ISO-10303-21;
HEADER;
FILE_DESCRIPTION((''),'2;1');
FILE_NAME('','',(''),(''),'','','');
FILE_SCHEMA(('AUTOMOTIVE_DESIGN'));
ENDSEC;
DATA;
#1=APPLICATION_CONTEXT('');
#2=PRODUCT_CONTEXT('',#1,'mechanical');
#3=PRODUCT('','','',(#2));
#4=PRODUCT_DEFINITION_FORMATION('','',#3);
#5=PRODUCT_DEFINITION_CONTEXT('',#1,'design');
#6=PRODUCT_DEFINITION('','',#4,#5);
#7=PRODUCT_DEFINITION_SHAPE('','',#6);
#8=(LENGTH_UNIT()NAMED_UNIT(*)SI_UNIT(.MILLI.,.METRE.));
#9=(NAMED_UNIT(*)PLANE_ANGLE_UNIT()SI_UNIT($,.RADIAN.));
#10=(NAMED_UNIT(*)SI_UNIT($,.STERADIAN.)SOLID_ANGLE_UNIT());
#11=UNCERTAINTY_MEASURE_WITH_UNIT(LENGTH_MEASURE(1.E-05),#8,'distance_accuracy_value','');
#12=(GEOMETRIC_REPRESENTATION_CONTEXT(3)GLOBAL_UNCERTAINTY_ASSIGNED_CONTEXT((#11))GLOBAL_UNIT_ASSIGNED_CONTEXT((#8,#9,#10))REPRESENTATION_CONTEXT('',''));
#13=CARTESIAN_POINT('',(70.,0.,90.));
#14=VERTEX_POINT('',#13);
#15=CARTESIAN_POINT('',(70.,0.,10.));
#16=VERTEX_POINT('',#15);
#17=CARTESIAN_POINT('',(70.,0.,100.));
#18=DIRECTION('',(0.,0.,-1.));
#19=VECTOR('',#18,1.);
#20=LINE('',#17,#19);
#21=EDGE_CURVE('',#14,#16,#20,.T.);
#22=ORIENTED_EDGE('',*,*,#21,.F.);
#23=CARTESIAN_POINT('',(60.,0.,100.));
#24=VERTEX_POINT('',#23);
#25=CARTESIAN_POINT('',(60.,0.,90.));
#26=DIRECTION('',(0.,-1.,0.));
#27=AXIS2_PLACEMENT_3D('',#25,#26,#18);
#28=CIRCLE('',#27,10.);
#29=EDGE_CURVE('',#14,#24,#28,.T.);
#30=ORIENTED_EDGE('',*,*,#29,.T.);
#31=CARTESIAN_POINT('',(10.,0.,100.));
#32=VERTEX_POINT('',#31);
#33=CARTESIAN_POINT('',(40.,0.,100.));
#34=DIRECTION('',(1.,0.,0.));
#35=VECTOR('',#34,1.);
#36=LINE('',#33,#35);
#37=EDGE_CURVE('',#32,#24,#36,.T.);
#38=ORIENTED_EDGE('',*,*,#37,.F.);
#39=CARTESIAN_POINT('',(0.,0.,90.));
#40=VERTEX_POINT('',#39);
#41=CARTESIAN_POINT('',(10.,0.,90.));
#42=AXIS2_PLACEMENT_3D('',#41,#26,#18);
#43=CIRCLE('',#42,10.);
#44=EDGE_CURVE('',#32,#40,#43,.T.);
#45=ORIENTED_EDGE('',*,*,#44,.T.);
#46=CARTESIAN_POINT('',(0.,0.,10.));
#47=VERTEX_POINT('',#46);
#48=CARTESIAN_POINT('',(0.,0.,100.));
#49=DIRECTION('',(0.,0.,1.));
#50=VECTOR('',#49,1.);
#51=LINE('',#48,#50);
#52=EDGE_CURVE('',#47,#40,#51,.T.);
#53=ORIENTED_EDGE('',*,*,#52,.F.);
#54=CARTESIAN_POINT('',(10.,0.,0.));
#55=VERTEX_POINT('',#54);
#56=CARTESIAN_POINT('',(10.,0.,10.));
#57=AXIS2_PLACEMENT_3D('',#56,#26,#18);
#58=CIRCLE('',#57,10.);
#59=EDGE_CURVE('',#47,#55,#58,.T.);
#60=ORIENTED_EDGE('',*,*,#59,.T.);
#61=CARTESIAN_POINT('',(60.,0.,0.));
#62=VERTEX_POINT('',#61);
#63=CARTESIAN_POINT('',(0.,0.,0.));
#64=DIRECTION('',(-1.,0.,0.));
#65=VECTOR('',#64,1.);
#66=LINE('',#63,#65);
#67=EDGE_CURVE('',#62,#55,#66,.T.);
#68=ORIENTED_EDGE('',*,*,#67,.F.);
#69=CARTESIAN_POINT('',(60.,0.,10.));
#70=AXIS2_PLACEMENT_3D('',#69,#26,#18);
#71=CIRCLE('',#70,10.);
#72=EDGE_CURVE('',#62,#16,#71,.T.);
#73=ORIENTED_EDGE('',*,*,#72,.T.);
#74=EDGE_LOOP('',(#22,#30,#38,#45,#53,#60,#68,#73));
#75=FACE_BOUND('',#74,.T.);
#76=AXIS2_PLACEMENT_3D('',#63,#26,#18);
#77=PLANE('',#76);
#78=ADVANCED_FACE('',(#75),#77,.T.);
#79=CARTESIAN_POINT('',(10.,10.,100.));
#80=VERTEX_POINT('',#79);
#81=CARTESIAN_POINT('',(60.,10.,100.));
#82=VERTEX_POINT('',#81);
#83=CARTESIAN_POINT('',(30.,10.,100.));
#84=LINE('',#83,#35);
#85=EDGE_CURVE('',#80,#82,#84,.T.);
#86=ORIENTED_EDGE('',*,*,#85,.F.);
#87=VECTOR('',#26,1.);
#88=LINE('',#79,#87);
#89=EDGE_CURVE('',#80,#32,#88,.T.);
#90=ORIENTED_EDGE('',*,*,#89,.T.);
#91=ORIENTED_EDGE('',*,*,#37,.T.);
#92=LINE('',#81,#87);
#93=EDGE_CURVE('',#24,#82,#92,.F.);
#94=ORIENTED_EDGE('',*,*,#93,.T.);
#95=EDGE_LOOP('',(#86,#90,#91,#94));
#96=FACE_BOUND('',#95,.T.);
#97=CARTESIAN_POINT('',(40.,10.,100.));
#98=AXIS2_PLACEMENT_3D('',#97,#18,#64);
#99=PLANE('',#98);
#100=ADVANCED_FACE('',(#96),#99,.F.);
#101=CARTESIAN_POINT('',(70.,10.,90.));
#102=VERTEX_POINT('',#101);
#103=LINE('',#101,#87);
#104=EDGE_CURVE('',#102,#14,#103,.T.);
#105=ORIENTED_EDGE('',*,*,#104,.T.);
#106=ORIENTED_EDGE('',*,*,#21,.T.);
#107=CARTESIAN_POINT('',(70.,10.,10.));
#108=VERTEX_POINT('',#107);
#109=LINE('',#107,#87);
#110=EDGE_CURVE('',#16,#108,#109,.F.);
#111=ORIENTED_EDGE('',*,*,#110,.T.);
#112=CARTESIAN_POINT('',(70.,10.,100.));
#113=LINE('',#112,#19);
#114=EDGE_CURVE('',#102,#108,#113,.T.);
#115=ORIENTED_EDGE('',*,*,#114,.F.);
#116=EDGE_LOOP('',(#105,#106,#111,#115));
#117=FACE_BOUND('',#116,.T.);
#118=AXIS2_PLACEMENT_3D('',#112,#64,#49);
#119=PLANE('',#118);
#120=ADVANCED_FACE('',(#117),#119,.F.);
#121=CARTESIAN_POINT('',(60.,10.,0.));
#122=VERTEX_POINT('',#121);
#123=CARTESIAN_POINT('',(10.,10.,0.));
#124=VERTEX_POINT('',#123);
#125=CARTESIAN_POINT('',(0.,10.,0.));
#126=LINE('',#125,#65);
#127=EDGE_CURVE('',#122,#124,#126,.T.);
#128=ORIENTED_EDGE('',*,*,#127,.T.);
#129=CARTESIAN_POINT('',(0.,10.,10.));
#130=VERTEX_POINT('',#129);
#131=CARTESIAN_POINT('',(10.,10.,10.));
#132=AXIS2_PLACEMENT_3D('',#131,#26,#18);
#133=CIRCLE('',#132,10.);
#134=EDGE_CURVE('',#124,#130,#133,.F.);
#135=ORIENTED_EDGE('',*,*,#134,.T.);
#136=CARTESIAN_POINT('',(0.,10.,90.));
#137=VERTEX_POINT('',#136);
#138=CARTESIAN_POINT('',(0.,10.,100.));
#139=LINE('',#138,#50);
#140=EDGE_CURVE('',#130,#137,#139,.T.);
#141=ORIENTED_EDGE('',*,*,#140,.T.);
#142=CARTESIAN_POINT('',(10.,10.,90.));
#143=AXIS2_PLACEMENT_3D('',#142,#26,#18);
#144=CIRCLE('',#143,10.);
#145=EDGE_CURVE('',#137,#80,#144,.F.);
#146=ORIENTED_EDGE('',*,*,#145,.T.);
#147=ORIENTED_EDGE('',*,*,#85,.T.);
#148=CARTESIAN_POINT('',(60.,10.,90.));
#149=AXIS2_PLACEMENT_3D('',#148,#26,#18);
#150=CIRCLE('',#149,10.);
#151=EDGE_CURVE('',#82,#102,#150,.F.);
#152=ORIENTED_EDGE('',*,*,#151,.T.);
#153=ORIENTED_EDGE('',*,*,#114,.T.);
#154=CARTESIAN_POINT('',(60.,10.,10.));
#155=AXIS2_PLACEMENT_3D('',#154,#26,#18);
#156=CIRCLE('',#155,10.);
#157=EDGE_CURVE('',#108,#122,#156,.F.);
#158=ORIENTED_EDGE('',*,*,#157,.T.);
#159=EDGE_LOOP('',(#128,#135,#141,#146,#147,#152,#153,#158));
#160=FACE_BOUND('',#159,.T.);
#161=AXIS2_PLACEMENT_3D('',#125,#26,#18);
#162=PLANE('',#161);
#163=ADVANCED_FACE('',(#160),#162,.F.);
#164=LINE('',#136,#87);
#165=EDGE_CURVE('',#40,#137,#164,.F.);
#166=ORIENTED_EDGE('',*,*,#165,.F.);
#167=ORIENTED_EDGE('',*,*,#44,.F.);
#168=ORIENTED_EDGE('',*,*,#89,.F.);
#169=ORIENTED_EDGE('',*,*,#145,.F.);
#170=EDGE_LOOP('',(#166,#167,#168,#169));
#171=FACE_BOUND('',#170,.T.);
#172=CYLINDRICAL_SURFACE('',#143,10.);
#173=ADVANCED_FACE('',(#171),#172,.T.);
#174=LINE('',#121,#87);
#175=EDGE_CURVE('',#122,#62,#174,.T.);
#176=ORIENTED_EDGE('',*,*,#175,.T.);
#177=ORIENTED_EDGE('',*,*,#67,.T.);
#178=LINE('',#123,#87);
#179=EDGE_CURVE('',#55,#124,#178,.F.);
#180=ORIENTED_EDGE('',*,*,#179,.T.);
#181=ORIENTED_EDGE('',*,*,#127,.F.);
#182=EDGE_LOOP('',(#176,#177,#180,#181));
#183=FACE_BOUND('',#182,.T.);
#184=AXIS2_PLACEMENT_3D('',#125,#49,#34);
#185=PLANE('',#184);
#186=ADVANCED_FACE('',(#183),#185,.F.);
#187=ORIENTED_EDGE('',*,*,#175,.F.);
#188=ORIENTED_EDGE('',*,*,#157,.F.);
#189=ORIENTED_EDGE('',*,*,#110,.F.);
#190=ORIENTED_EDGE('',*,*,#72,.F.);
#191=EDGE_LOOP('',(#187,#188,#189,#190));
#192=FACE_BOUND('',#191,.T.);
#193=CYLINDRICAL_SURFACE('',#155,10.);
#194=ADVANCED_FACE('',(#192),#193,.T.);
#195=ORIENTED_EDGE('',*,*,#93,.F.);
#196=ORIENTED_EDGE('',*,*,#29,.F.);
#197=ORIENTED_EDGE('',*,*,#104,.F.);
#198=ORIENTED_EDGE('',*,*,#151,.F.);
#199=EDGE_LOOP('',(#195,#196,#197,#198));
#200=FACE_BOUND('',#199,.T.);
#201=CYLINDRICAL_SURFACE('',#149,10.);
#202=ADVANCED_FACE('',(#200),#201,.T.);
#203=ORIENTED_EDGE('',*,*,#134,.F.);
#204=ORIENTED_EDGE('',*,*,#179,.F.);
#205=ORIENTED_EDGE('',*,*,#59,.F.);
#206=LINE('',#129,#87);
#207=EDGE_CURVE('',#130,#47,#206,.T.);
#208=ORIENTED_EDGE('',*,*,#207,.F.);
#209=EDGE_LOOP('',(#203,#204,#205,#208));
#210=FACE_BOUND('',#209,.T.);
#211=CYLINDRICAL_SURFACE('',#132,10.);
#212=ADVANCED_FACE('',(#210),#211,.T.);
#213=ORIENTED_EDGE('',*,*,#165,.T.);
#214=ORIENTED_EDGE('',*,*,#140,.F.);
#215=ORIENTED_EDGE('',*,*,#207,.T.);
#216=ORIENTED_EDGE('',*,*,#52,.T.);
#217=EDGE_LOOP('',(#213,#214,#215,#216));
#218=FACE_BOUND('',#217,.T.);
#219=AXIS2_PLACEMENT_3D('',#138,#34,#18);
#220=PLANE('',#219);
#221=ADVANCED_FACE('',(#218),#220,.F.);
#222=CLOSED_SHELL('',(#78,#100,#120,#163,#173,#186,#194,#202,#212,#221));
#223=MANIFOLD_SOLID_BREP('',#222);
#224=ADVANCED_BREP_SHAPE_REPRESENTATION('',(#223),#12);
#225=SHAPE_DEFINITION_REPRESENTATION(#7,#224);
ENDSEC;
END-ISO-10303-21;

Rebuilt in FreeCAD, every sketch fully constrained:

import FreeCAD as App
import Part
import Sketcher
Q = App.Units.Quantity


def edges_at(feature, points):
    """Names of the edges that pass closest to the given points."""
    edges = feature.Shape.Edges
    near = lambda p: min(range(len(edges)), key=lambda i: edges[i].distToShape(Part.Vertex(*p))[0])
    return sorted({f"Edge{near(p) + 1}" for p in points})

doc = App.newDocument("Part")
body = doc.addObject("PartDesign::Body", "Body")

# Sketch on XZ plane
sketch1 = doc.addObject("Sketcher::SketchObject", "Sketch")
body.addObject(sketch1)
sketch1.AttachmentSupport = (doc.XZ_Plane, [""])
sketch1.MapMode = "FlatFace"
sketch1.addGeometry(Part.LineSegment(App.Vector(70, 0, 0), App.Vector(0, 0, 0)), False)
sketch1.addGeometry(Part.LineSegment(App.Vector(0, 0, 0), App.Vector(0, 100, 0)), False)
sketch1.addGeometry(Part.LineSegment(App.Vector(0, 100, 0), App.Vector(70, 100, 0)), False)
sketch1.addGeometry(Part.LineSegment(App.Vector(70, 100, 0), App.Vector(70, 0, 0)), False)
sketch1.addConstraint(Sketcher.Constraint("Coincident", 0, 2, 1, 1))
sketch1.addConstraint(Sketcher.Constraint("Coincident", 1, 2, 2, 1))
sketch1.addConstraint(Sketcher.Constraint("Coincident", 2, 2, 3, 1))
sketch1.addConstraint(Sketcher.Constraint("Coincident", 3, 2, 0, 1))
sketch1.addConstraint(Sketcher.Constraint("Horizontal", 0))
sketch1.addConstraint(Sketcher.Constraint("Vertical", 1))
sketch1.addConstraint(Sketcher.Constraint("Horizontal", 2))
sketch1.addConstraint(Sketcher.Constraint("Vertical", 3))
sketch1.addConstraint(Sketcher.Constraint("Coincident", 0, 2, -1, 1))
sketch1.addConstraint(Sketcher.Constraint("DistanceX", 0, 2, 0, 1, Q("70 mm")))
sketch1.addConstraint(Sketcher.Constraint("DistanceY", 1, 1, 1, 2, Q("100 mm")))
pad1 = doc.addObject("PartDesign::Pad", "Pad")
body.addObject(pad1)
pad1.Profile = sketch1
pad1.Length = 10
pad1.Reversed = True
doc.recompute()

fillet = doc.addObject("PartDesign::Fillet", "Fillet")
body.addObject(fillet)
fillet.Base = (pad1, edges_at(pad1, [
    (0, 5, 0),
    (70, 5, 0),
    (70, 5, 100),
    (0, 5, 100),
]))
fillet.Radius = 10

doc.recompute()
